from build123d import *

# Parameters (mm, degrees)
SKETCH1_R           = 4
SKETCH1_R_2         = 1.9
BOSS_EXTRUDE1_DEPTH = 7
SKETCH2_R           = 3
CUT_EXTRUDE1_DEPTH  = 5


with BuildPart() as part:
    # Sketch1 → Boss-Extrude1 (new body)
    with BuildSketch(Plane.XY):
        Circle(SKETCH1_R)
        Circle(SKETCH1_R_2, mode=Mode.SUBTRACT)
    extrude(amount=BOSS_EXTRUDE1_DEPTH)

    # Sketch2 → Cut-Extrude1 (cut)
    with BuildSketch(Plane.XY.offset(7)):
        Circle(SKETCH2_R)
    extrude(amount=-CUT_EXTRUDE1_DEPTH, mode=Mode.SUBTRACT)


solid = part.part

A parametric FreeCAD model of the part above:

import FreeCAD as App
import Part
import Sketcher
from FreeCAD import Vector

doc = App.newDocument("Part")
body = doc.addObject("PartDesign::Body", "Body")

# Sketch on XY plane
sketch1 = body.newObject("Sketcher::SketchObject", "Sketch")
sketch1.AttachmentSupport = (doc.getObject("XY_Plane"), [""])
sketch1.MapMode = "FlatFace"
sketch1.addGeometry([
    Part.Circle(Vector(0, 0, 0), Vector(0, 0, 1), 4),
    Part.Circle(Vector(0, 0, 0), Vector(0, 0, 1), 1.9),
], False)
sketch1.addConstraint([
    Sketcher.Constraint("Coincident", 0, 3, -1, 1),
    Sketcher.Constraint("Coincident", 1, 3, -1, 1),
    Sketcher.Constraint("Diameter", 0, 8.0),
    Sketcher.Constraint("Diameter", 1, 3.8),
])
pad1 = body.newObject("PartDesign::Pad", "Pad")
pad1.Profile = sketch1
pad1.Length = 7

# Sketch on XY plane
sketch2 = body.newObject("Sketcher::SketchObject", "Sketch001")
sketch2.AttachmentSupport = (doc.getObject("XY_Plane"), [""])
sketch2.MapMode = "FlatFace"
sketch2.AttachmentOffset = App.Placement(Vector(0, 0, 7), App.Rotation())
sketch2.addGeometry(Part.Circle(Vector(0, 0, 0), Vector(0, 0, 1), 3), False)
sketch2.addConstraint([
    Sketcher.Constraint("Coincident", 0, 3, -1, 1),
    Sketcher.Constraint("Diameter", 0, 6.0),
])
pocket1 = body.newObject("PartDesign::Pocket", "Pocket")
pocket1.Profile = sketch2
pocket1.Length = 5

doc.recompute()
